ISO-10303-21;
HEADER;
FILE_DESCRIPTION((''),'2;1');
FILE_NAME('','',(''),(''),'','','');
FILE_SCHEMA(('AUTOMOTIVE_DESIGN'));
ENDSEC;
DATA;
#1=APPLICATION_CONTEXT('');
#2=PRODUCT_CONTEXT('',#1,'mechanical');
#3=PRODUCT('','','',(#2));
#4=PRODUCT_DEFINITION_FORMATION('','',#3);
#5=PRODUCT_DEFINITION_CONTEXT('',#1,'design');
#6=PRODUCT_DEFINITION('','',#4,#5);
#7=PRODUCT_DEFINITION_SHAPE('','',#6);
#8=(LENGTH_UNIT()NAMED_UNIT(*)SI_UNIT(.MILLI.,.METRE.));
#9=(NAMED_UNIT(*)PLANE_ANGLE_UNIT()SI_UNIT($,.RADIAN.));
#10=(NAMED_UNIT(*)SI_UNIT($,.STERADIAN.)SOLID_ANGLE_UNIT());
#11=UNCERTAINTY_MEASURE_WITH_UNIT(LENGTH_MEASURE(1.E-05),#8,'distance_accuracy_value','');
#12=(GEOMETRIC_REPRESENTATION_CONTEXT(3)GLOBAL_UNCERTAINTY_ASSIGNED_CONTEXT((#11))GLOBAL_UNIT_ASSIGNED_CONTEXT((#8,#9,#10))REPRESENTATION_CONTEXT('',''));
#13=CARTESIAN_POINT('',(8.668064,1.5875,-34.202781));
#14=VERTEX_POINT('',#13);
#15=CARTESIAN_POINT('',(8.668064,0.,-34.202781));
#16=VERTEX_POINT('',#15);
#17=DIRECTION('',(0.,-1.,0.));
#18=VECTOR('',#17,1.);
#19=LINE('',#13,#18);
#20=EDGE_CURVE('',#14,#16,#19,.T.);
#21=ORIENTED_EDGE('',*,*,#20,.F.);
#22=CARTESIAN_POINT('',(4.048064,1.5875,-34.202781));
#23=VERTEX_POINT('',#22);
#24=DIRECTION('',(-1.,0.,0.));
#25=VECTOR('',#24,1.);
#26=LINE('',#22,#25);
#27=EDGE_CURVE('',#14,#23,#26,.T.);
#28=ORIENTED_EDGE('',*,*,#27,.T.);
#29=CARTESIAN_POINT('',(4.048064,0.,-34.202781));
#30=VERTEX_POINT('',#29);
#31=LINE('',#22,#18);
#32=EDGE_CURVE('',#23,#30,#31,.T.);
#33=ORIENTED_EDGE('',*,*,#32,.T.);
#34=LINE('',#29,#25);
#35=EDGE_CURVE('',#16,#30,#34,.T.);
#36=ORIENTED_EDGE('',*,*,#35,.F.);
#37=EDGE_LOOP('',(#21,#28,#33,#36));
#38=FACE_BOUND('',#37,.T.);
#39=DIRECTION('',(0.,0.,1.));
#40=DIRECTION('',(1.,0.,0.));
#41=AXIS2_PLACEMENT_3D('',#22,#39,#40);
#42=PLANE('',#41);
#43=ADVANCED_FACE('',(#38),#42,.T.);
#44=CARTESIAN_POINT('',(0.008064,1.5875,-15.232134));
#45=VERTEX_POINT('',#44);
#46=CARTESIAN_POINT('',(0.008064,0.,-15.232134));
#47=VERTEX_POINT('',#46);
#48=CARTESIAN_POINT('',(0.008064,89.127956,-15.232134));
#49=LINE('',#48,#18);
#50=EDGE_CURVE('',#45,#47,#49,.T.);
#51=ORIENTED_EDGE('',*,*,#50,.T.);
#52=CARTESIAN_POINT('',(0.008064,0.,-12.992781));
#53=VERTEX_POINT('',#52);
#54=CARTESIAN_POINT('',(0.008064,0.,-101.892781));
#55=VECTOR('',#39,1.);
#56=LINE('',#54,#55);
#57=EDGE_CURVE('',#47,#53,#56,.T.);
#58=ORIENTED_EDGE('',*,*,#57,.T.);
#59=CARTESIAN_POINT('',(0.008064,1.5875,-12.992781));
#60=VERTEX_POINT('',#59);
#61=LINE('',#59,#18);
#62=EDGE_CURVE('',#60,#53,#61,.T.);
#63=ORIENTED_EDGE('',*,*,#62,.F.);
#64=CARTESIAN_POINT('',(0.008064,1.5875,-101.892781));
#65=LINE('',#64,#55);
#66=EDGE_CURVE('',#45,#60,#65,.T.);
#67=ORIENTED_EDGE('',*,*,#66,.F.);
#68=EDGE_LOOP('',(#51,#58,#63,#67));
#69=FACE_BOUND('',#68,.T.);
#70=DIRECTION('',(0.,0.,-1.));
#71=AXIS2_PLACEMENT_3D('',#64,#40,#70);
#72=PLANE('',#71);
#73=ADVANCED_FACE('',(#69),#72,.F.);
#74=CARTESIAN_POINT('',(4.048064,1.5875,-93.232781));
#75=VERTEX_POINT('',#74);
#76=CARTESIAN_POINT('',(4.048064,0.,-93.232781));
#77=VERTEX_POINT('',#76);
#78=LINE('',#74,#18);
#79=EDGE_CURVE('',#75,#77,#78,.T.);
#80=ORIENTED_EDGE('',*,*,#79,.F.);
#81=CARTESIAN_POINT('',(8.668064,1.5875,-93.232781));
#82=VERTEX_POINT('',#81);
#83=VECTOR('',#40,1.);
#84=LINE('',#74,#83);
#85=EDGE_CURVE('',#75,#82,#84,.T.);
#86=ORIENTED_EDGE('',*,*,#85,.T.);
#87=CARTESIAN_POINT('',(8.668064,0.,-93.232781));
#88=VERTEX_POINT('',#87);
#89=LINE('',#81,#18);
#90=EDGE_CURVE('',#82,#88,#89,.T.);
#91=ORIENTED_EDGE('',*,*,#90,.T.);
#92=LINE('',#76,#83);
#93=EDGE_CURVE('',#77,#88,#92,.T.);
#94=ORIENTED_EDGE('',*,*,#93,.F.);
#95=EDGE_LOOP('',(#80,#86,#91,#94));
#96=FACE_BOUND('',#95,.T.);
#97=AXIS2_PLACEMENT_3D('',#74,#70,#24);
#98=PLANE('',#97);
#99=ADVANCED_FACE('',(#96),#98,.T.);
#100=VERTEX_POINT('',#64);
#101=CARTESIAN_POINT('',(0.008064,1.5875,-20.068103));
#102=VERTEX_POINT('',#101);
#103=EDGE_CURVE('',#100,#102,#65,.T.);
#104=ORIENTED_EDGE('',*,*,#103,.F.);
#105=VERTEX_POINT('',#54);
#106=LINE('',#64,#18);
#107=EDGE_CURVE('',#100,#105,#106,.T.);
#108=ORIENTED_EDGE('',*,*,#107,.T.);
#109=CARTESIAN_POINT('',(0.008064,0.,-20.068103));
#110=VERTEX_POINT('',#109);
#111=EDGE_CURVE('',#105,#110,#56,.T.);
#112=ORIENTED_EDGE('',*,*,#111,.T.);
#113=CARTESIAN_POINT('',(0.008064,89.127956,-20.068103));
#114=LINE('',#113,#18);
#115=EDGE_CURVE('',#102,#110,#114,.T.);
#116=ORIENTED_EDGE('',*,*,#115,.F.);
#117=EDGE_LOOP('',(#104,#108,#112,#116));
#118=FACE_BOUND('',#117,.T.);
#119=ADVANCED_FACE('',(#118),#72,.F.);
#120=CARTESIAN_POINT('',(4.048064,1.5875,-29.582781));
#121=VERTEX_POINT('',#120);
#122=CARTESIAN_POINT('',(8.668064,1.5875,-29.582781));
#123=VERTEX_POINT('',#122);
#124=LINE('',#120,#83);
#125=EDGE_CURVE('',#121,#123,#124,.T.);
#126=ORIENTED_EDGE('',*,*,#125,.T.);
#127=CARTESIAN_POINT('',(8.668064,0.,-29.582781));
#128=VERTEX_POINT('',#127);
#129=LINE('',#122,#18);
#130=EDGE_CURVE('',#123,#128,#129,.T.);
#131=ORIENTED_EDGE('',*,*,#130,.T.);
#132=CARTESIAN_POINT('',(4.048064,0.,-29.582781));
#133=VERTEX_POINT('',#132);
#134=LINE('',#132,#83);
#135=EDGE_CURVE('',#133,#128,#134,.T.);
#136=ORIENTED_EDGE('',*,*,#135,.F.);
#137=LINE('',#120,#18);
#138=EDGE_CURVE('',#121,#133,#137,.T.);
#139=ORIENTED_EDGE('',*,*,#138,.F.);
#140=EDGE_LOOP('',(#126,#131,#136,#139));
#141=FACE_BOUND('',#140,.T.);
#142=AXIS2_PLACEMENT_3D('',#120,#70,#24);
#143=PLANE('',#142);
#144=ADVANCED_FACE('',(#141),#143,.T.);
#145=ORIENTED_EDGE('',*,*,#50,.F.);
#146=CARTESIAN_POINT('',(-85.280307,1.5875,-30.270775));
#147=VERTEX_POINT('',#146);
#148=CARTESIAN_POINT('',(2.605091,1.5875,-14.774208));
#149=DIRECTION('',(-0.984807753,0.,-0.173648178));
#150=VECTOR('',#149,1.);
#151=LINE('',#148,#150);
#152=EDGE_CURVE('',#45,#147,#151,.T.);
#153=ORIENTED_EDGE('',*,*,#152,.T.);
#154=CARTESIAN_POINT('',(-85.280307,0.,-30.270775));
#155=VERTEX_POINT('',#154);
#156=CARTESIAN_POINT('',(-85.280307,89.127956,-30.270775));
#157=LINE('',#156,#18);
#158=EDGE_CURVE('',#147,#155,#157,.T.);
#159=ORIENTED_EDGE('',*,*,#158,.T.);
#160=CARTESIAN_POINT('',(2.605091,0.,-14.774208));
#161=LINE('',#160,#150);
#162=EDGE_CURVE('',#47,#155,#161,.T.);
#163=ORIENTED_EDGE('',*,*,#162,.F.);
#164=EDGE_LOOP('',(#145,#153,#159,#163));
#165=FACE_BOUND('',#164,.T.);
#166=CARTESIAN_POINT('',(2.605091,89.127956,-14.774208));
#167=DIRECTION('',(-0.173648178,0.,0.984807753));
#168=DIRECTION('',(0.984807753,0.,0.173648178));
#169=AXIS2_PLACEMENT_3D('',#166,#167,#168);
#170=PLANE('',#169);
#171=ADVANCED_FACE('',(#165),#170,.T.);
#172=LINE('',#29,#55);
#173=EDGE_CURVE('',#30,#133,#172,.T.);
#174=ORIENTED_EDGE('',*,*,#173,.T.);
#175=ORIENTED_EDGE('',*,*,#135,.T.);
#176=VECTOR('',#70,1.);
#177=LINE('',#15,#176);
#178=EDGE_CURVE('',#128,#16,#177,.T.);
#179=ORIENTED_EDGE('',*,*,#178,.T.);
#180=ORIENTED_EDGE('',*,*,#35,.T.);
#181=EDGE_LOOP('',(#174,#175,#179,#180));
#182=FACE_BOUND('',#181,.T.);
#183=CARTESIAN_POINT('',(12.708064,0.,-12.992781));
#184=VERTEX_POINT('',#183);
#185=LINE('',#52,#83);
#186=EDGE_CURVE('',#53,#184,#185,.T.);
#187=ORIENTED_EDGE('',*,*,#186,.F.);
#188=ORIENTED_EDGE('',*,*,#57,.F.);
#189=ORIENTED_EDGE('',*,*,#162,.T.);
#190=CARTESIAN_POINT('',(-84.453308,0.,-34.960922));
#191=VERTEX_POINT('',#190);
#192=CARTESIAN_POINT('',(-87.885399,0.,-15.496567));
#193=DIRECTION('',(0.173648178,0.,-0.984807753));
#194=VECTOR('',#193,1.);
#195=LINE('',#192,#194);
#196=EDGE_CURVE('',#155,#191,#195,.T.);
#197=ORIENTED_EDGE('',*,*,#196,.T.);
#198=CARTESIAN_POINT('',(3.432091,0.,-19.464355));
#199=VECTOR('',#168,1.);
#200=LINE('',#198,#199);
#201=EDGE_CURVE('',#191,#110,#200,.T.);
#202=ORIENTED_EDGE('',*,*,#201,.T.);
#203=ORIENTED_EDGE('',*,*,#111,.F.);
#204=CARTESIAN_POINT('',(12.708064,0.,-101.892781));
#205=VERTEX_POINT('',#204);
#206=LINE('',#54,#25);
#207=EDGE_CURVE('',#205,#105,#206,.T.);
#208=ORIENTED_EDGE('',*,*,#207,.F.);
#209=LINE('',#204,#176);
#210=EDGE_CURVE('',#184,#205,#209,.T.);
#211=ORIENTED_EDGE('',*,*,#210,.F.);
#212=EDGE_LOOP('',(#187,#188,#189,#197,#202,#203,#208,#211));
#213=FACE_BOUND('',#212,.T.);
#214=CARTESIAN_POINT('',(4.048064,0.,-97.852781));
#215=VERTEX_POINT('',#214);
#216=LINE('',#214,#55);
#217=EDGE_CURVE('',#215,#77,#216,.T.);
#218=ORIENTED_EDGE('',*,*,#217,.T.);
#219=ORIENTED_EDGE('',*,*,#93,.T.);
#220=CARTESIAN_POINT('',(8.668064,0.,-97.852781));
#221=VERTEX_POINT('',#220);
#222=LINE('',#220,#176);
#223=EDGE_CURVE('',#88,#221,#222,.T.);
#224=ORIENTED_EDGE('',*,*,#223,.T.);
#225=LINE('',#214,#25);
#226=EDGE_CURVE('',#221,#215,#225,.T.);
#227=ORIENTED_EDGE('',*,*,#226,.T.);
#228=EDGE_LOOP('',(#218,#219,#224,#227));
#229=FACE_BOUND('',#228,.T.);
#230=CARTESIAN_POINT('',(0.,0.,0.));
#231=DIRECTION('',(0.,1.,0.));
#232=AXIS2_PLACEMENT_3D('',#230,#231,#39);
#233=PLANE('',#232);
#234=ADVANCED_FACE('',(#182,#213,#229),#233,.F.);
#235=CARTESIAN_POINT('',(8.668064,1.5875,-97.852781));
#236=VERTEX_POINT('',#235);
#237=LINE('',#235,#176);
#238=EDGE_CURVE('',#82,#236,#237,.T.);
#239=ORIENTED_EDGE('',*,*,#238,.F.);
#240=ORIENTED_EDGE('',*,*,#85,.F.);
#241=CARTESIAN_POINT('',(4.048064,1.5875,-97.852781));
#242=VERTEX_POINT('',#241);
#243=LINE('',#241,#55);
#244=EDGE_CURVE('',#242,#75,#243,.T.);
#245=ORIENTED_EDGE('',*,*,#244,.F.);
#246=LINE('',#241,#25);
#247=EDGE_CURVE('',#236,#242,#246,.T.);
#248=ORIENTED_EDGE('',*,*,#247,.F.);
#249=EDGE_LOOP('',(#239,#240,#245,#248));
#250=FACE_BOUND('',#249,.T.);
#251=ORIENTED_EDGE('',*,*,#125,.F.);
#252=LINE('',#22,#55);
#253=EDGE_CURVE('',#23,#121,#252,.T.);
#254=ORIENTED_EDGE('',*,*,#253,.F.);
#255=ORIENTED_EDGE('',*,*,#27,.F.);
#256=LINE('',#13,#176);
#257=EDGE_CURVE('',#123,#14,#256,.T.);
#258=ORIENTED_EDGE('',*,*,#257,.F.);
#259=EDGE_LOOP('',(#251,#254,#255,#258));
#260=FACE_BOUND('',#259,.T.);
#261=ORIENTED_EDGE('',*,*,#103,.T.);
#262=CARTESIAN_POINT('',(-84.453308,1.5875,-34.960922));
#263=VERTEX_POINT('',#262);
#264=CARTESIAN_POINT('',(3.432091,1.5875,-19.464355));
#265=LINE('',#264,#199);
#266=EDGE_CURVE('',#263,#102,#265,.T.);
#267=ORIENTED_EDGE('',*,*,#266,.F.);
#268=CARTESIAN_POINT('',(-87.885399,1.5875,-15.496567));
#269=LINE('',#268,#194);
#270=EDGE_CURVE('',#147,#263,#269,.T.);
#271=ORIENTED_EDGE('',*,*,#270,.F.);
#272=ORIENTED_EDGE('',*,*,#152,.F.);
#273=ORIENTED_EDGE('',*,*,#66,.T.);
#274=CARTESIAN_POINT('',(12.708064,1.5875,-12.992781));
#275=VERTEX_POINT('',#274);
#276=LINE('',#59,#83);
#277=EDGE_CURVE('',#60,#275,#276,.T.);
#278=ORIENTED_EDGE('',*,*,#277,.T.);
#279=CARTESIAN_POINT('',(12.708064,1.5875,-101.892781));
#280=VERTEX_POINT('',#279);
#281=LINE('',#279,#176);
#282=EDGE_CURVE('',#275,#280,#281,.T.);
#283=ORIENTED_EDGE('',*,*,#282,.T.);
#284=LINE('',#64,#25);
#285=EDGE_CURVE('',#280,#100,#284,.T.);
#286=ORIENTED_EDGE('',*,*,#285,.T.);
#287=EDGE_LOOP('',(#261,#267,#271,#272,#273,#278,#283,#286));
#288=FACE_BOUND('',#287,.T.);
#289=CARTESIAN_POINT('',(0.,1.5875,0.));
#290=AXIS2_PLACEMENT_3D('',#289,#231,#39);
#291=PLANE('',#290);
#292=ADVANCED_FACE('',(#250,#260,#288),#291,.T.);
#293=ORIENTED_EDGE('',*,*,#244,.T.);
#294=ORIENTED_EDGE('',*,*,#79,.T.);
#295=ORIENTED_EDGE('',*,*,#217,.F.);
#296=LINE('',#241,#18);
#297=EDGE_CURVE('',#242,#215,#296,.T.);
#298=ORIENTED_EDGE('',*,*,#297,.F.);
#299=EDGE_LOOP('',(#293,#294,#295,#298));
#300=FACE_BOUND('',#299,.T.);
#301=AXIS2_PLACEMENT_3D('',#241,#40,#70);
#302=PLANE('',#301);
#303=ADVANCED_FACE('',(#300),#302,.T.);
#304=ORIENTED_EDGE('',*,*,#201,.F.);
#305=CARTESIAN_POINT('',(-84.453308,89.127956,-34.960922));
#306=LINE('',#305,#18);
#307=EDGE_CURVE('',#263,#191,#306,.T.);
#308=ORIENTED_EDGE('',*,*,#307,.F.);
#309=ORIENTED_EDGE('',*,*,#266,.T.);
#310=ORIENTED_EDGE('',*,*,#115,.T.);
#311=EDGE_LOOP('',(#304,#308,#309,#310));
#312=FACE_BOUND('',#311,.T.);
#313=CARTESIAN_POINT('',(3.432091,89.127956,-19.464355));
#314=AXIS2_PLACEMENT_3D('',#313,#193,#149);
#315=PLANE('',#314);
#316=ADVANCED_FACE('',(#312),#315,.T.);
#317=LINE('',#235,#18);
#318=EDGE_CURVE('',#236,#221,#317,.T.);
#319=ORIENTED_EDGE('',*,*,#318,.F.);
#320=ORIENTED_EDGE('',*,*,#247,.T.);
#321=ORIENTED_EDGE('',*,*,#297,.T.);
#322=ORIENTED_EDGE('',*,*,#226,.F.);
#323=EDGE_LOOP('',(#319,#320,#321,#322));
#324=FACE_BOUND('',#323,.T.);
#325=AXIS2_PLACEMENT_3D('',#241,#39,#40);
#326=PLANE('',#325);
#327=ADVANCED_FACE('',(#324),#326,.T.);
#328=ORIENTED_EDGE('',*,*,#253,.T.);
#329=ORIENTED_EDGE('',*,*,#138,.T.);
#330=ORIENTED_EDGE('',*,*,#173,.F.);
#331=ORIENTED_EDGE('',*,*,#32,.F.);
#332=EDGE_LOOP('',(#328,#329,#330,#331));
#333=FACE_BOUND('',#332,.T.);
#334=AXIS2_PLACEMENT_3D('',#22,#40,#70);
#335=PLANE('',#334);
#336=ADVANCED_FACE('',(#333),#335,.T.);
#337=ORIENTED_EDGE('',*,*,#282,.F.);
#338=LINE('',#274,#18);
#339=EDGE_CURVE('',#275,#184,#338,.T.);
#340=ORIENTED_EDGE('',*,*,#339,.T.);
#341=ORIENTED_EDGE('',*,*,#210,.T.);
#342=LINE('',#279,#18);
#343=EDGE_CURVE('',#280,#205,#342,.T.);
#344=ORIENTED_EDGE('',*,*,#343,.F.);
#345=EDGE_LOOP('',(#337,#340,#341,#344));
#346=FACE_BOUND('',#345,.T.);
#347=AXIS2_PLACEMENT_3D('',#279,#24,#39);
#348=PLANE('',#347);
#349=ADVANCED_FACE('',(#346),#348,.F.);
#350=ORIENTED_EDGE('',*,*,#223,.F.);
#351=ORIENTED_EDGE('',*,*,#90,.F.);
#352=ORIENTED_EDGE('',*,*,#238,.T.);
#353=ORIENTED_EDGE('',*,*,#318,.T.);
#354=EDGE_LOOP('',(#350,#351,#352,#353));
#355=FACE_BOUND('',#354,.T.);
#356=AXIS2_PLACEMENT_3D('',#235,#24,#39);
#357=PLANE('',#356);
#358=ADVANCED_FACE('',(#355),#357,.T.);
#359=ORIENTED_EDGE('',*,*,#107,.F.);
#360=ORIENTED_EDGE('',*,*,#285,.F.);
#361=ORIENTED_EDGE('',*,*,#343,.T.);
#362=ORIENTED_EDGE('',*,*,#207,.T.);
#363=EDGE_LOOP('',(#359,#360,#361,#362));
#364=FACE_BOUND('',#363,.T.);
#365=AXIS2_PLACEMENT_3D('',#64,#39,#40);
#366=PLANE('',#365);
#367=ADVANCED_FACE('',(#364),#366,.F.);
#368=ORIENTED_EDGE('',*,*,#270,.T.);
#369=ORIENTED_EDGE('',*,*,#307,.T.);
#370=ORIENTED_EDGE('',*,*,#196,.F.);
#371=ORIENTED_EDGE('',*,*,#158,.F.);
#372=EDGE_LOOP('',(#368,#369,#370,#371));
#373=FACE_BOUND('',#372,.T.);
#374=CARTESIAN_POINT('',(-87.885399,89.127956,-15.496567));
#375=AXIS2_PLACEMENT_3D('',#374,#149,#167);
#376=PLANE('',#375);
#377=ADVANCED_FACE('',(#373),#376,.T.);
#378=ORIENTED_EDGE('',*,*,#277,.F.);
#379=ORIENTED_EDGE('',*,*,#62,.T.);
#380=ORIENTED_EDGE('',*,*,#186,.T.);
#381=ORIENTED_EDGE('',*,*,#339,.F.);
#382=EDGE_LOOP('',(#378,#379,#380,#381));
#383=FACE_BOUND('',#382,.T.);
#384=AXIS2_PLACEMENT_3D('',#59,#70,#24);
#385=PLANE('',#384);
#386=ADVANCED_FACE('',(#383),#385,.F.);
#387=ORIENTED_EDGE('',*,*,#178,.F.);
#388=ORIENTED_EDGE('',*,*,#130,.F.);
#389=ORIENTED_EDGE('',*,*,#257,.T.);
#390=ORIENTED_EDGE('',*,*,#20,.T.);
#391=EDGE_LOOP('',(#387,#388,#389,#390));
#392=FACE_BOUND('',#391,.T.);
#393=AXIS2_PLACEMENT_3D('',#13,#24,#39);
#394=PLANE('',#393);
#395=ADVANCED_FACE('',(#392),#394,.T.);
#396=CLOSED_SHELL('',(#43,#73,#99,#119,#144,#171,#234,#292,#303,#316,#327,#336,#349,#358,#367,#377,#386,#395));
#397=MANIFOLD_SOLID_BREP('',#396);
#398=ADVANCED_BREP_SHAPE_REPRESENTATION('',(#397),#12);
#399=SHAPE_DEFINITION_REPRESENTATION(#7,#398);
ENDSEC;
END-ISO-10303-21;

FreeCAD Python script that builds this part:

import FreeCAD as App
import Part
import Sketcher
from FreeCAD import Vector
Q = App.Units.Quantity


def add_polygon(sketch, points):
    """Adds a closed chain of lines whose ends are joined by coincident constraints."""
    first, n = sketch.GeometryCount, len(points)
    for a, b in zip(points, points[1:] + points[:1]):
        sketch.addGeometry(Part.LineSegment(App.Vector(*a, 0), App.Vector(*b, 0)), False)
    for i in range(n):
        sketch.addConstraint(Sketcher.Constraint("Coincident", first + i, 2, first + (i + 1) % n, 1))

doc = App.newDocument("Part")
body = doc.addObject("PartDesign::Body", "Body")

sketch1 = doc.addObject("Sketcher::SketchObject", "Sketch")
body.addObject(sketch1)
sketch1.AttachmentSupport = (doc.XZ_Plane, [""])
sketch1.MapMode = "FlatFace"
add_polygon(sketch1, [(0, -101.9), (0, -13), (12.7, -13), (12.7, -101.9)])
add_polygon(sketch1, [(8.7, -29.6), (4, -29.6), (4, -34.2), (8.7, -34.2)])
add_polygon(sketch1, [(8.7, -93.2), (4, -93.2), (4, -97.9), (8.7, -97.9)])
sketch1.addConstraint([
    Sketcher.Constraint("Vertical", 0),
    Sketcher.Constraint("Horizontal", 1),
    Sketcher.Constraint("Vertical", 2),
    Sketcher.Constraint("Horizontal", 3),
    Sketcher.Constraint("Horizontal", 4),
    Sketcher.Constraint("Vertical", 5),
    Sketcher.Constraint("Horizontal", 6),
    Sketcher.Constraint("Vertical", 7),
    Sketcher.Constraint("Horizontal", 8),
    Sketcher.Constraint("Vertical", 9),
    Sketcher.Constraint("Horizontal", 10),
    Sketcher.Constraint("Vertical", 11),
    Sketcher.Constraint("Vertical", 5, 2, 8, 2),
    Sketcher.Constraint("Vertical", 7, 2, 10, 2),
    Sketcher.Constraint("Equal", 10, 5),
    Sketcher.Constraint("Equal", 7, 9),
    Sketcher.Constraint("DistanceX", 1, 1, 1, 2, Q("0.5 in")),
    Sketcher.Constraint("DistanceY", 0, 1, 0, 2, Q("3.5 in")),
    Sketcher.Constraint("DistanceX", 4, 2, 4, 1, 4.62),
    Sketcher.Constraint("DistanceX", 0, 2, 4, 2, 4.04),
    Sketcher.Constraint("DistanceY", 4, 2, 0, 2, 16.59),
    Sketcher.Constraint("DistanceY", 3, 2, 8, 2, 8.66),
    Sketcher.Constraint("DistanceY", 0, 2, -1, 1, 12.992781),
    Sketcher.Constraint("DistanceX", -1, 1, 0, 2, 0.008064),
])
pad1 = doc.addObject("PartDesign::Pad", "Pad")
body.addObject(pad1)
pad1.Profile = sketch1
pad1.Length = Q("0.0625 in")
pad1.Reversed = True

sketch2 = doc.addObject("Sketcher::SketchObject", "Sketch001")
body.addObject(sketch2)
sketch2.AttachmentSupport = (doc.XZ_Plane, [""])
sketch2.MapMode = "FlatFace"
add_polygon(sketch2, [(0, -20.1), (0, -15.2), (-85.3, -30.3), (-84.5, -35)])
sketch2.addConstraint([
    Sketcher.Constraint("Vertical", 0),
    Sketcher.Constraint("Perpendicular", 1, 2),
    Sketcher.Constraint("Perpendicular", 2, 3),
    Sketcher.Constraint("Angle", 1, Q("-170 deg")),
    Sketcher.Constraint("Distance", 2, Q("0.1875 in")),
    Sketcher.Constraint("DistanceY", 2, 2, -1, 1, 34.960922),
    Sketcher.Constraint("DistanceX", 1, 2, 0, 2, 85.288371),
    Sketcher.Constraint("DistanceX", -1, 1, 0, 2, 0.008064),
])
pad2 = doc.addObject("PartDesign::Pad", "Pad001")
body.addObject(pad2)
pad2.Profile = sketch2
pad2.Length = Q("0.0625 in")
pad2.Reversed = True

doc.recompute()
